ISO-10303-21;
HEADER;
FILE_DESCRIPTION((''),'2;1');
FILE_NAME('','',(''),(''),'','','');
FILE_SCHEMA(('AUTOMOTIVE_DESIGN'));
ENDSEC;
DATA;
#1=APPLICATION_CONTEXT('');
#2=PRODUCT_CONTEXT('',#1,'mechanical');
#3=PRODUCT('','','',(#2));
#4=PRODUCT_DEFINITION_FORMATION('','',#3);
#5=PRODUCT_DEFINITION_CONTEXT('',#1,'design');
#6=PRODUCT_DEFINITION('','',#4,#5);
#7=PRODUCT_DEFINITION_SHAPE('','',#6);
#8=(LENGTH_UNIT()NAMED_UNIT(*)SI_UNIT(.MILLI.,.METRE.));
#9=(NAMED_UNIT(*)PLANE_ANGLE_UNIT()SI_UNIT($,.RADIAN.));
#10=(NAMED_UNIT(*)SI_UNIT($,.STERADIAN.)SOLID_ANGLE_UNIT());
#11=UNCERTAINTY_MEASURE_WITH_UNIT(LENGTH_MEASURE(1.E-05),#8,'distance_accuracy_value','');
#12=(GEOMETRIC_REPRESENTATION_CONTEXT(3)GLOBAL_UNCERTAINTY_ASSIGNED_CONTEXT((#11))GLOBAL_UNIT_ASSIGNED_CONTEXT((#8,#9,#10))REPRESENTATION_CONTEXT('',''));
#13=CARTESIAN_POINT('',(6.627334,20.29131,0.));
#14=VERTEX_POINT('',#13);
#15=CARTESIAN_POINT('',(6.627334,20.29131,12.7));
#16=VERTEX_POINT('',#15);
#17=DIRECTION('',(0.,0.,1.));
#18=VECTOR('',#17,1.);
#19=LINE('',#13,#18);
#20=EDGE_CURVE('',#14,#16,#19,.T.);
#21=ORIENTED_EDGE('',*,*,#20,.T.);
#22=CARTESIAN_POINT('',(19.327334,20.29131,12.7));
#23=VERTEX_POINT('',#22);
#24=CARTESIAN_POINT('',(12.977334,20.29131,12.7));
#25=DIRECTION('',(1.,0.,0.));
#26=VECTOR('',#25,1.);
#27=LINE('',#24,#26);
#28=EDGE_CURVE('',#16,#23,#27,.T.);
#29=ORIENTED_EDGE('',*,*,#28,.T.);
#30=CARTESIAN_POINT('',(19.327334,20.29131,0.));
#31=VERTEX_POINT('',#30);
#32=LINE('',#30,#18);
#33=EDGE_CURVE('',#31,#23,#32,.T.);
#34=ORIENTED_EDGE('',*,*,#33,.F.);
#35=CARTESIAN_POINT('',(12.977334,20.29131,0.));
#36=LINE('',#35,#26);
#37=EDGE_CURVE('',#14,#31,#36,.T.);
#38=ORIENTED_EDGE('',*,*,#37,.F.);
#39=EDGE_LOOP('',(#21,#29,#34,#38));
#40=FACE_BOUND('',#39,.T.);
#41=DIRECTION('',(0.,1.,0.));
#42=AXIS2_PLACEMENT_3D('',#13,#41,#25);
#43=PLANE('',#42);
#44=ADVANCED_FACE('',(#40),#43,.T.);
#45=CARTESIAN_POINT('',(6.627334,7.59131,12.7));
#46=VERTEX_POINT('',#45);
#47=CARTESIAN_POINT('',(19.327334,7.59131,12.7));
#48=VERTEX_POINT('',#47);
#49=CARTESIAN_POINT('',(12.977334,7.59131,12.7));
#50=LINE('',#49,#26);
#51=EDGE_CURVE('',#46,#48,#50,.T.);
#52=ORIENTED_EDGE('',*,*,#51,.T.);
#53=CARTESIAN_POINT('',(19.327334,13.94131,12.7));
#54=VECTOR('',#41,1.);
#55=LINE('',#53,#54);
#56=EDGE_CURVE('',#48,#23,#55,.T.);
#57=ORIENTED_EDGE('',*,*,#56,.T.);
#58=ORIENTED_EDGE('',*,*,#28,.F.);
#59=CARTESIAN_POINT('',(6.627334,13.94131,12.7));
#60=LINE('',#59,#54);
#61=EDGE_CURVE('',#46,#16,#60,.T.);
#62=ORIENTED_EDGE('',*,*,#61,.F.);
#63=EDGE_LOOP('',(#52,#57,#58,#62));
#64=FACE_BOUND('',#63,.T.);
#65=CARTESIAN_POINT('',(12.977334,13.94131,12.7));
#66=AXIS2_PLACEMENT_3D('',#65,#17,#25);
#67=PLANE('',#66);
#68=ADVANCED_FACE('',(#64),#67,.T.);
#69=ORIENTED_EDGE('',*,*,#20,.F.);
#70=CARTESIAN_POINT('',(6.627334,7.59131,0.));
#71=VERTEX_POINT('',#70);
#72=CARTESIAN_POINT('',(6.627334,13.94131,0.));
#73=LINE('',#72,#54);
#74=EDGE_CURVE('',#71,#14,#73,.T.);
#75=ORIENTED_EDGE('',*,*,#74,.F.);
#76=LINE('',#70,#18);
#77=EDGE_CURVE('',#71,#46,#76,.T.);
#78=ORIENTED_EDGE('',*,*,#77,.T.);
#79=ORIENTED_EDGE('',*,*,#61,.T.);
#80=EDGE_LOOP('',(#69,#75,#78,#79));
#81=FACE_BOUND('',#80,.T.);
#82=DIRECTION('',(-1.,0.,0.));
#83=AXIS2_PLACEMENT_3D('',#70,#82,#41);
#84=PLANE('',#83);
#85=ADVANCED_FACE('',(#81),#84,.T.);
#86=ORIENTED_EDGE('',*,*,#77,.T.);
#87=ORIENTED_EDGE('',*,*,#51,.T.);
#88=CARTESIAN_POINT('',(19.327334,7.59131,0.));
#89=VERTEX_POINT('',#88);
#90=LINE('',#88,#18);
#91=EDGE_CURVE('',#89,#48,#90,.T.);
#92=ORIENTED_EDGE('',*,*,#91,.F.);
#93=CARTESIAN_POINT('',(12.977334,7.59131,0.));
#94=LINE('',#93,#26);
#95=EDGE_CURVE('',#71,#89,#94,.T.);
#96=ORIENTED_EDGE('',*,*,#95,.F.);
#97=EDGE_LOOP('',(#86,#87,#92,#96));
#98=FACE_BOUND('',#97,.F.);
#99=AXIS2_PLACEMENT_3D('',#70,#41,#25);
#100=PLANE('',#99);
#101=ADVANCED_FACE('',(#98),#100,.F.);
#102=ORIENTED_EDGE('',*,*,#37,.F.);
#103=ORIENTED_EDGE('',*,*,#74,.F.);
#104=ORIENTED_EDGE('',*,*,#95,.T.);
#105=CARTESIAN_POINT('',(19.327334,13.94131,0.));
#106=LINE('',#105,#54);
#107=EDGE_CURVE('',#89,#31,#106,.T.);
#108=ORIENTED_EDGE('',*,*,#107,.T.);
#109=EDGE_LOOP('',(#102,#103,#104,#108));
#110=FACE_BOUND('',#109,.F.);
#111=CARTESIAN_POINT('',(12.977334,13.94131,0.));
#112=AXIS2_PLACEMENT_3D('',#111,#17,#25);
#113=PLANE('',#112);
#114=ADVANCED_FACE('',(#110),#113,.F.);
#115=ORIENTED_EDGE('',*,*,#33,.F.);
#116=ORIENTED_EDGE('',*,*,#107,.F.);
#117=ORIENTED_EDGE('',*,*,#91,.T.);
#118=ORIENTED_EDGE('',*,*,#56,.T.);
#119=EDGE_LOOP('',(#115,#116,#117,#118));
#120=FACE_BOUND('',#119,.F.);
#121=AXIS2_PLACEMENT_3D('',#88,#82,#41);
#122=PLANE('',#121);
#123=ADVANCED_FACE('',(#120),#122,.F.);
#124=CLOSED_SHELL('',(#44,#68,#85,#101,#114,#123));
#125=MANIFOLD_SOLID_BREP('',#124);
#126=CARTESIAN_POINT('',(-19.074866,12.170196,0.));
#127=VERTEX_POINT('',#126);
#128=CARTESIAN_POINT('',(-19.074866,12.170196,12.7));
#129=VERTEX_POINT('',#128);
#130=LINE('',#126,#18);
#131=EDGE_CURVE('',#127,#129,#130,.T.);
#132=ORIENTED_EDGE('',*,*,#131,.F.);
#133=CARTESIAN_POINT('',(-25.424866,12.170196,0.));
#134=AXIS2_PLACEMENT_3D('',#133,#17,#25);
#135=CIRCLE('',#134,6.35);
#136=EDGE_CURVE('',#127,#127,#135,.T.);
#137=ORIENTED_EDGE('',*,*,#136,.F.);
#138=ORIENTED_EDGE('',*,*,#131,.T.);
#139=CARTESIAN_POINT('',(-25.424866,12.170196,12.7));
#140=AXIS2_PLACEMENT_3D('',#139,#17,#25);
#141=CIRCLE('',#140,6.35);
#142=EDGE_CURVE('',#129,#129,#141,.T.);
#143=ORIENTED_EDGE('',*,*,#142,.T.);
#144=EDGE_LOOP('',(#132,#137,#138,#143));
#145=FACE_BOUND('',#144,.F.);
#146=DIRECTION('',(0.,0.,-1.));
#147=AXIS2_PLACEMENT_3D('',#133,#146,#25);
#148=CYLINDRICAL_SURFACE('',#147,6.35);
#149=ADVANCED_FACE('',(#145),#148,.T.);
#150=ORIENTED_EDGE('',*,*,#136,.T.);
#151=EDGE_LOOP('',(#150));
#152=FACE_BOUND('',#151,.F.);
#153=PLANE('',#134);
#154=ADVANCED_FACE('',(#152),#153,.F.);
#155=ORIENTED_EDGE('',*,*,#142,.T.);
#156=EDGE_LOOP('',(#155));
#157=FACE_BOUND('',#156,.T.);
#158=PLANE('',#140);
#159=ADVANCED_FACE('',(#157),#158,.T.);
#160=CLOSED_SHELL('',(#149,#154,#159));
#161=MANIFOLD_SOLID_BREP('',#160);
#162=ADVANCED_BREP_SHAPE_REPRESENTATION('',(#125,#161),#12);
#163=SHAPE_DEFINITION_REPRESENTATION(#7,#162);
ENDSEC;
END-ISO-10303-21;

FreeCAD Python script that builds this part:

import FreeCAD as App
import Part
import Sketcher
Q = App.Units.Quantity


def add_polygon(sketch, points):
    """Adds a closed chain of lines whose ends are joined by coincident constraints."""
    first, n = sketch.GeometryCount, len(points)
    for a, b in zip(points, points[1:] + points[:1]):
        sketch.addGeometry(Part.LineSegment(App.Vector(*a, 0), App.Vector(*b, 0)), False)
    for i in range(n):
        sketch.addConstraint(Sketcher.Constraint("Coincident", first + i, 2, first + (i + 1) % n, 1))

doc = App.newDocument("Part")
body = doc.addObject("PartDesign::Body", "Body")
body.AllowCompound = True

# Sketch on XY plane
sketch1 = doc.addObject("Sketcher::SketchObject", "Sketch")
body.addObject(sketch1)
sketch1.AttachmentSupport = (doc.XY_Plane, [""])
sketch1.MapMode = "FlatFace"
sketch1.addGeometry(Part.Circle(App.Vector(-25, 12, 0), App.Vector(0, 0, 1), 6), False)  # 0
add_polygon(sketch1, [(7, 20), (7, 8), (19, 8), (19, 20)])  # lines 1-4
sketch1.addConstraint(Sketcher.Constraint("Vertical", 1))
sketch1.addConstraint(Sketcher.Constraint("Horizontal", 2))
sketch1.addConstraint(Sketcher.Constraint("Vertical", 3))
sketch1.addConstraint(Sketcher.Constraint("Horizontal", 4))
sketch1.addConstraint(Sketcher.Constraint("Equal", 4, 1))
sketch1.addConstraint(Sketcher.Constraint("Diameter", 0, Q("0.5 in")))
sketch1.addConstraint(Sketcher.Constraint("DistanceX", 2, 1, 2, 2, Q("0.5 in")))
sketch1.addConstraint(Sketcher.Constraint("DistanceX", 0, 3, 1, 2, Q("32.0522 mm")))
sketch1.addConstraint(Sketcher.Constraint("DistanceY", -1, 1, 1, 2, Q("7.59131 mm")))
sketch1.addConstraint(Sketcher.Constraint("DistanceX", 0, 3, -1, 1, Q("25.424866 mm")))
sketch1.addConstraint(Sketcher.Constraint("DistanceY", -1, 1, 0, 3, Q("12.170196 mm")))
pad1 = doc.addObject("PartDesign::Pad", "Pad")
body.addObject(pad1)
pad1.Profile = sketch1
pad1.Length = Q("0.5 in")

doc.recompute()
